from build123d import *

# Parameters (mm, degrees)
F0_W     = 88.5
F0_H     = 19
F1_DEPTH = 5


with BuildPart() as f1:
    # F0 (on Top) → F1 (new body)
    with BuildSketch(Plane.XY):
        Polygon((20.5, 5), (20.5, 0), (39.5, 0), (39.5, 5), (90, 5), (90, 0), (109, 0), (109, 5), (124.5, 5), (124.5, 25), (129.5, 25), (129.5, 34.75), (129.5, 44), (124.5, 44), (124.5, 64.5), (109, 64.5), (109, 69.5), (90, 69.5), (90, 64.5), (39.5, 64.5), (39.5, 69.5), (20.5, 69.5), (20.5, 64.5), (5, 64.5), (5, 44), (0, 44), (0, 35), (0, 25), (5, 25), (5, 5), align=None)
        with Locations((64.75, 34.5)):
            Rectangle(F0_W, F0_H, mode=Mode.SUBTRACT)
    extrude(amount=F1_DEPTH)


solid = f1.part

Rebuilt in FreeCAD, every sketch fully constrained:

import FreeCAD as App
import Part
import Sketcher
Q = App.Units.Quantity

doc = App.newDocument("Part")
body = doc.addObject("PartDesign::Body", "Body")

# Sketch on XY plane
sketch1 = body.newObject("Sketcher::SketchObject", "Sketch")
sketch1.AttachmentSupport = (doc.getObject("XY_Plane"), [""])
sketch1.MapMode = "FlatFace"
sketch1.addGeometry([
    Part.LineSegment(App.Vector(20.5, 5, 0), App.Vector(20.5, 0, 0)),  # 0
    Part.LineSegment(App.Vector(20.5, 0, 0), App.Vector(39.5, 0, 0)),  # 1
    Part.LineSegment(App.Vector(39.5, 0, 0), App.Vector(39.5, 5, 0)),  # 2
    Part.LineSegment(App.Vector(39.5, 5, 0), App.Vector(90, 5, 0)),  # 3
    Part.LineSegment(App.Vector(90, 5, 0), App.Vector(90, 0, 0)),  # 4
    Part.LineSegment(App.Vector(90, 0, 0), App.Vector(109, 0, 0)),  # 5
    Part.LineSegment(App.Vector(109, 0, 0), App.Vector(109, 5, 0)),  # 6
    Part.LineSegment(App.Vector(109, 5, 0), App.Vector(124.5, 5, 0)),  # 7
    Part.LineSegment(App.Vector(124.5, 5, 0), App.Vector(124.5, 25, 0)),  # 8
    Part.LineSegment(App.Vector(124.5, 25, 0), App.Vector(129.5, 25, 0)),  # 9
    Part.LineSegment(App.Vector(129.5, 25, 0), App.Vector(129.5, 44, 0)),  # 10
    Part.LineSegment(App.Vector(129.5, 44, 0), App.Vector(124.5, 44, 0)),  # 11
    Part.LineSegment(App.Vector(124.5, 44, 0), App.Vector(124.5, 64.5, 0)),  # 12
    Part.LineSegment(App.Vector(124.5, 64.5, 0), App.Vector(109, 64.5, 0)),  # 13
    Part.LineSegment(App.Vector(109, 64.5, 0), App.Vector(109, 69.5, 0)),  # 14
    Part.LineSegment(App.Vector(109, 69.5, 0), App.Vector(90, 69.5, 0)),  # 15
    Part.LineSegment(App.Vector(90, 69.5, 0), App.Vector(90, 64.5, 0)),  # 16
    Part.LineSegment(App.Vector(90, 64.5, 0), App.Vector(39.5, 64.5, 0)),  # 17
    Part.LineSegment(App.Vector(39.5, 64.5, 0), App.Vector(39.5, 69.5, 0)),  # 18
    Part.LineSegment(App.Vector(39.5, 69.5, 0), App.Vector(20.5, 69.5, 0)),  # 19
    Part.LineSegment(App.Vector(20.5, 69.5, 0), App.Vector(20.5, 64.5, 0)),  # 20
    Part.LineSegment(App.Vector(20.5, 64.5, 0), App.Vector(5, 64.5, 0)),  # 21
    Part.LineSegment(App.Vector(5, 64.5, 0), App.Vector(5, 44, 0)),  # 22
    Part.LineSegment(App.Vector(5, 44, 0), App.Vector(0, 44, 0)),  # 23
    Part.LineSegment(App.Vector(0, 44, 0), App.Vector(0, 25, 0)),  # 24
    Part.LineSegment(App.Vector(0, 25, 0), App.Vector(5, 25, 0)),  # 25
    Part.LineSegment(App.Vector(5, 25, 0), App.Vector(5, 5, 0)),  # 26
    Part.LineSegment(App.Vector(5, 5, 0), App.Vector(20.5, 5, 0)),  # 27
    Part.LineSegment(App.Vector(109, 25, 0), App.Vector(20.5, 25, 0)),  # 28
    Part.LineSegment(App.Vector(20.5, 25, 0), App.Vector(20.5, 44, 0)),  # 29
    Part.LineSegment(App.Vector(20.5, 44, 0), App.Vector(109, 44, 0)),  # 30
    Part.LineSegment(App.Vector(109, 44, 0), App.Vector(109, 25, 0)),  # 31
], False)
sketch1.addConstraint([
    Sketcher.Constraint("Coincident", 0, 2, 1, 1),
    Sketcher.Constraint("Coincident", 1, 2, 2, 1),
    Sketcher.Constraint("Coincident", 2, 2, 3, 1),
    Sketcher.Constraint("Coincident", 3, 2, 4, 1),
    Sketcher.Constraint("Coincident", 4, 2, 5, 1),
    Sketcher.Constraint("Coincident", 5, 2, 6, 1),
    Sketcher.Constraint("Coincident", 6, 2, 7, 1),
    Sketcher.Constraint("Coincident", 7, 2, 8, 1),
    Sketcher.Constraint("Coincident", 8, 2, 9, 1),
    Sketcher.Constraint("Coincident", 9, 2, 10, 1),
    Sketcher.Constraint("Coincident", 10, 2, 11, 1),
    Sketcher.Constraint("Coincident", 11, 2, 12, 1),
    Sketcher.Constraint("Coincident", 12, 2, 13, 1),
    Sketcher.Constraint("Coincident", 13, 2, 14, 1),
    Sketcher.Constraint("Coincident", 14, 2, 15, 1),
    Sketcher.Constraint("Coincident", 15, 2, 16, 1),
    Sketcher.Constraint("Coincident", 16, 2, 17, 1),
    Sketcher.Constraint("Coincident", 17, 2, 18, 1),
    Sketcher.Constraint("Coincident", 18, 2, 19, 1),
    Sketcher.Constraint("Coincident", 19, 2, 20, 1),
    Sketcher.Constraint("Coincident", 20, 2, 21, 1),
    Sketcher.Constraint("Coincident", 21, 2, 22, 1),
    Sketcher.Constraint("Coincident", 22, 2, 23, 1),
    Sketcher.Constraint("Coincident", 23, 2, 24, 1),
    Sketcher.Constraint("Coincident", 24, 2, 25, 1),
    Sketcher.Constraint("Coincident", 25, 2, 26, 1),
    Sketcher.Constraint("Coincident", 26, 2, 27, 1),
    Sketcher.Constraint("Coincident", 27, 2, 0, 1),
    Sketcher.Constraint("Coincident", 28, 2, 29, 1),
    Sketcher.Constraint("Coincident", 29, 2, 30, 1),
    Sketcher.Constraint("Coincident", 30, 2, 31, 1),
    Sketcher.Constraint("Coincident", 31, 2, 28, 1),
    Sketcher.Constraint("Vertical", 0),
    Sketcher.Constraint("Horizontal", 1),
    Sketcher.Constraint("Vertical", 2),
    Sketcher.Constraint("Horizontal", 3),
    Sketcher.Constraint("Vertical", 4),
    Sketcher.Constraint("Horizontal", 5),
    Sketcher.Constraint("Vertical", 6),
    Sketcher.Constraint("Horizontal", 7),
    Sketcher.Constraint("Vertical", 8),
    Sketcher.Constraint("Horizontal", 9),
    Sketcher.Constraint("Vertical", 10),
    Sketcher.Constraint("Horizontal", 11),
    Sketcher.Constraint("Vertical", 12),
    Sketcher.Constraint("Horizontal", 13),
    Sketcher.Constraint("Vertical", 14),
    Sketcher.Constraint("Horizontal", 15),
    Sketcher.Constraint("Vertical", 16),
    Sketcher.Constraint("Horizontal", 17),
    Sketcher.Constraint("Vertical", 18),
    Sketcher.Constraint("Horizontal", 19),
    Sketcher.Constraint("Vertical", 20),
    Sketcher.Constraint("Horizontal", 21),
    Sketcher.Constraint("Vertical", 22),
    Sketcher.Constraint("Horizontal", 23),
    Sketcher.Constraint("Vertical", 24),
    Sketcher.Constraint("Horizontal", 25),
    Sketcher.Constraint("Vertical", 26),
    Sketcher.Constraint("Horizontal", 27),
    Sketcher.Constraint("Horizontal", 28),
    Sketcher.Constraint("Vertical", 29),
    Sketcher.Constraint("Horizontal", 30),
    Sketcher.Constraint("Vertical", 31),
    Sketcher.Constraint("PointOnObject", 0, 2, -1),
    Sketcher.Constraint("PointOnObject", 4, 2, -1),
    Sketcher.Constraint("PointOnObject", 23, 2, -2),
    Sketcher.Constraint("Horizontal", 3, 2, 6, 2),
    Sketcher.Constraint("Horizontal", 13, 2, 16, 2),
    Sketcher.Constraint("Horizontal", 15, 2, 18, 2),
    Sketcher.Constraint("Horizontal", 17, 2, 20, 2),
    Sketcher.Constraint("Horizontal", 11, 2, 22, 2),
    Sketcher.Constraint("Horizontal", 9, 2, 24, 2),
    Sketcher.Constraint("Horizontal", 7, 2, 26, 2),
    Sketcher.Constraint("Horizontal", 25, 2, 28, 2),
    Sketcher.Constraint("Horizontal", 23, 2, 29, 2),
    Sketcher.Constraint("Vertical", 8, 2, 11, 2),
    Sketcher.Constraint("Vertical", 6, 2, 13, 2),
    Sketcher.Constraint("Vertical", 4, 2, 15, 2),
    Sketcher.Constraint("Vertical", 2, 2, 17, 2),
    Sketcher.Constraint("Vertical", 0, 2, 19, 2),
    Sketcher.Constraint("Vertical", 22, 2, 25, 2),
    Sketcher.Constraint("Vertical", 27, 2, 28, 2),
    Sketcher.Constraint("Vertical", 14, 2, 30, 2),
    Sketcher.Constraint("Equal", 1, 5),
    Sketcher.Constraint("Equal", 13, 21),
    Sketcher.Constraint("Equal", 11, 23),
    Sketcher.Constraint("Equal", 25, 0),
    Sketcher.Constraint("Equal", 19, 10),
    Sketcher.Constraint("Equal", 6, 14),
    Sketcher.Constraint("DistanceX", 1, 1, 1, 2, Q("19 mm")),
    Sketcher.Constraint("DistanceX", 9, 1, 9, 2, Q("5 mm")),
    Sketcher.Constraint("DistanceY", 8, 1, 8, 2, Q("20 mm")),
    Sketcher.Constraint("DistanceX", 3, 1, 3, 2, Q("50.5 mm")),
    Sketcher.Constraint("DistanceX", 7, 1, 7, 2, Q("15.5 mm")),
    Sketcher.Constraint("DistanceY", 12, 1, 12, 2, Q("20.5 mm")),
])
pad1 = body.newObject("PartDesign::Pad", "Pad")
pad1.Profile = sketch1
pad1.Length = 5

doc.recompute()
